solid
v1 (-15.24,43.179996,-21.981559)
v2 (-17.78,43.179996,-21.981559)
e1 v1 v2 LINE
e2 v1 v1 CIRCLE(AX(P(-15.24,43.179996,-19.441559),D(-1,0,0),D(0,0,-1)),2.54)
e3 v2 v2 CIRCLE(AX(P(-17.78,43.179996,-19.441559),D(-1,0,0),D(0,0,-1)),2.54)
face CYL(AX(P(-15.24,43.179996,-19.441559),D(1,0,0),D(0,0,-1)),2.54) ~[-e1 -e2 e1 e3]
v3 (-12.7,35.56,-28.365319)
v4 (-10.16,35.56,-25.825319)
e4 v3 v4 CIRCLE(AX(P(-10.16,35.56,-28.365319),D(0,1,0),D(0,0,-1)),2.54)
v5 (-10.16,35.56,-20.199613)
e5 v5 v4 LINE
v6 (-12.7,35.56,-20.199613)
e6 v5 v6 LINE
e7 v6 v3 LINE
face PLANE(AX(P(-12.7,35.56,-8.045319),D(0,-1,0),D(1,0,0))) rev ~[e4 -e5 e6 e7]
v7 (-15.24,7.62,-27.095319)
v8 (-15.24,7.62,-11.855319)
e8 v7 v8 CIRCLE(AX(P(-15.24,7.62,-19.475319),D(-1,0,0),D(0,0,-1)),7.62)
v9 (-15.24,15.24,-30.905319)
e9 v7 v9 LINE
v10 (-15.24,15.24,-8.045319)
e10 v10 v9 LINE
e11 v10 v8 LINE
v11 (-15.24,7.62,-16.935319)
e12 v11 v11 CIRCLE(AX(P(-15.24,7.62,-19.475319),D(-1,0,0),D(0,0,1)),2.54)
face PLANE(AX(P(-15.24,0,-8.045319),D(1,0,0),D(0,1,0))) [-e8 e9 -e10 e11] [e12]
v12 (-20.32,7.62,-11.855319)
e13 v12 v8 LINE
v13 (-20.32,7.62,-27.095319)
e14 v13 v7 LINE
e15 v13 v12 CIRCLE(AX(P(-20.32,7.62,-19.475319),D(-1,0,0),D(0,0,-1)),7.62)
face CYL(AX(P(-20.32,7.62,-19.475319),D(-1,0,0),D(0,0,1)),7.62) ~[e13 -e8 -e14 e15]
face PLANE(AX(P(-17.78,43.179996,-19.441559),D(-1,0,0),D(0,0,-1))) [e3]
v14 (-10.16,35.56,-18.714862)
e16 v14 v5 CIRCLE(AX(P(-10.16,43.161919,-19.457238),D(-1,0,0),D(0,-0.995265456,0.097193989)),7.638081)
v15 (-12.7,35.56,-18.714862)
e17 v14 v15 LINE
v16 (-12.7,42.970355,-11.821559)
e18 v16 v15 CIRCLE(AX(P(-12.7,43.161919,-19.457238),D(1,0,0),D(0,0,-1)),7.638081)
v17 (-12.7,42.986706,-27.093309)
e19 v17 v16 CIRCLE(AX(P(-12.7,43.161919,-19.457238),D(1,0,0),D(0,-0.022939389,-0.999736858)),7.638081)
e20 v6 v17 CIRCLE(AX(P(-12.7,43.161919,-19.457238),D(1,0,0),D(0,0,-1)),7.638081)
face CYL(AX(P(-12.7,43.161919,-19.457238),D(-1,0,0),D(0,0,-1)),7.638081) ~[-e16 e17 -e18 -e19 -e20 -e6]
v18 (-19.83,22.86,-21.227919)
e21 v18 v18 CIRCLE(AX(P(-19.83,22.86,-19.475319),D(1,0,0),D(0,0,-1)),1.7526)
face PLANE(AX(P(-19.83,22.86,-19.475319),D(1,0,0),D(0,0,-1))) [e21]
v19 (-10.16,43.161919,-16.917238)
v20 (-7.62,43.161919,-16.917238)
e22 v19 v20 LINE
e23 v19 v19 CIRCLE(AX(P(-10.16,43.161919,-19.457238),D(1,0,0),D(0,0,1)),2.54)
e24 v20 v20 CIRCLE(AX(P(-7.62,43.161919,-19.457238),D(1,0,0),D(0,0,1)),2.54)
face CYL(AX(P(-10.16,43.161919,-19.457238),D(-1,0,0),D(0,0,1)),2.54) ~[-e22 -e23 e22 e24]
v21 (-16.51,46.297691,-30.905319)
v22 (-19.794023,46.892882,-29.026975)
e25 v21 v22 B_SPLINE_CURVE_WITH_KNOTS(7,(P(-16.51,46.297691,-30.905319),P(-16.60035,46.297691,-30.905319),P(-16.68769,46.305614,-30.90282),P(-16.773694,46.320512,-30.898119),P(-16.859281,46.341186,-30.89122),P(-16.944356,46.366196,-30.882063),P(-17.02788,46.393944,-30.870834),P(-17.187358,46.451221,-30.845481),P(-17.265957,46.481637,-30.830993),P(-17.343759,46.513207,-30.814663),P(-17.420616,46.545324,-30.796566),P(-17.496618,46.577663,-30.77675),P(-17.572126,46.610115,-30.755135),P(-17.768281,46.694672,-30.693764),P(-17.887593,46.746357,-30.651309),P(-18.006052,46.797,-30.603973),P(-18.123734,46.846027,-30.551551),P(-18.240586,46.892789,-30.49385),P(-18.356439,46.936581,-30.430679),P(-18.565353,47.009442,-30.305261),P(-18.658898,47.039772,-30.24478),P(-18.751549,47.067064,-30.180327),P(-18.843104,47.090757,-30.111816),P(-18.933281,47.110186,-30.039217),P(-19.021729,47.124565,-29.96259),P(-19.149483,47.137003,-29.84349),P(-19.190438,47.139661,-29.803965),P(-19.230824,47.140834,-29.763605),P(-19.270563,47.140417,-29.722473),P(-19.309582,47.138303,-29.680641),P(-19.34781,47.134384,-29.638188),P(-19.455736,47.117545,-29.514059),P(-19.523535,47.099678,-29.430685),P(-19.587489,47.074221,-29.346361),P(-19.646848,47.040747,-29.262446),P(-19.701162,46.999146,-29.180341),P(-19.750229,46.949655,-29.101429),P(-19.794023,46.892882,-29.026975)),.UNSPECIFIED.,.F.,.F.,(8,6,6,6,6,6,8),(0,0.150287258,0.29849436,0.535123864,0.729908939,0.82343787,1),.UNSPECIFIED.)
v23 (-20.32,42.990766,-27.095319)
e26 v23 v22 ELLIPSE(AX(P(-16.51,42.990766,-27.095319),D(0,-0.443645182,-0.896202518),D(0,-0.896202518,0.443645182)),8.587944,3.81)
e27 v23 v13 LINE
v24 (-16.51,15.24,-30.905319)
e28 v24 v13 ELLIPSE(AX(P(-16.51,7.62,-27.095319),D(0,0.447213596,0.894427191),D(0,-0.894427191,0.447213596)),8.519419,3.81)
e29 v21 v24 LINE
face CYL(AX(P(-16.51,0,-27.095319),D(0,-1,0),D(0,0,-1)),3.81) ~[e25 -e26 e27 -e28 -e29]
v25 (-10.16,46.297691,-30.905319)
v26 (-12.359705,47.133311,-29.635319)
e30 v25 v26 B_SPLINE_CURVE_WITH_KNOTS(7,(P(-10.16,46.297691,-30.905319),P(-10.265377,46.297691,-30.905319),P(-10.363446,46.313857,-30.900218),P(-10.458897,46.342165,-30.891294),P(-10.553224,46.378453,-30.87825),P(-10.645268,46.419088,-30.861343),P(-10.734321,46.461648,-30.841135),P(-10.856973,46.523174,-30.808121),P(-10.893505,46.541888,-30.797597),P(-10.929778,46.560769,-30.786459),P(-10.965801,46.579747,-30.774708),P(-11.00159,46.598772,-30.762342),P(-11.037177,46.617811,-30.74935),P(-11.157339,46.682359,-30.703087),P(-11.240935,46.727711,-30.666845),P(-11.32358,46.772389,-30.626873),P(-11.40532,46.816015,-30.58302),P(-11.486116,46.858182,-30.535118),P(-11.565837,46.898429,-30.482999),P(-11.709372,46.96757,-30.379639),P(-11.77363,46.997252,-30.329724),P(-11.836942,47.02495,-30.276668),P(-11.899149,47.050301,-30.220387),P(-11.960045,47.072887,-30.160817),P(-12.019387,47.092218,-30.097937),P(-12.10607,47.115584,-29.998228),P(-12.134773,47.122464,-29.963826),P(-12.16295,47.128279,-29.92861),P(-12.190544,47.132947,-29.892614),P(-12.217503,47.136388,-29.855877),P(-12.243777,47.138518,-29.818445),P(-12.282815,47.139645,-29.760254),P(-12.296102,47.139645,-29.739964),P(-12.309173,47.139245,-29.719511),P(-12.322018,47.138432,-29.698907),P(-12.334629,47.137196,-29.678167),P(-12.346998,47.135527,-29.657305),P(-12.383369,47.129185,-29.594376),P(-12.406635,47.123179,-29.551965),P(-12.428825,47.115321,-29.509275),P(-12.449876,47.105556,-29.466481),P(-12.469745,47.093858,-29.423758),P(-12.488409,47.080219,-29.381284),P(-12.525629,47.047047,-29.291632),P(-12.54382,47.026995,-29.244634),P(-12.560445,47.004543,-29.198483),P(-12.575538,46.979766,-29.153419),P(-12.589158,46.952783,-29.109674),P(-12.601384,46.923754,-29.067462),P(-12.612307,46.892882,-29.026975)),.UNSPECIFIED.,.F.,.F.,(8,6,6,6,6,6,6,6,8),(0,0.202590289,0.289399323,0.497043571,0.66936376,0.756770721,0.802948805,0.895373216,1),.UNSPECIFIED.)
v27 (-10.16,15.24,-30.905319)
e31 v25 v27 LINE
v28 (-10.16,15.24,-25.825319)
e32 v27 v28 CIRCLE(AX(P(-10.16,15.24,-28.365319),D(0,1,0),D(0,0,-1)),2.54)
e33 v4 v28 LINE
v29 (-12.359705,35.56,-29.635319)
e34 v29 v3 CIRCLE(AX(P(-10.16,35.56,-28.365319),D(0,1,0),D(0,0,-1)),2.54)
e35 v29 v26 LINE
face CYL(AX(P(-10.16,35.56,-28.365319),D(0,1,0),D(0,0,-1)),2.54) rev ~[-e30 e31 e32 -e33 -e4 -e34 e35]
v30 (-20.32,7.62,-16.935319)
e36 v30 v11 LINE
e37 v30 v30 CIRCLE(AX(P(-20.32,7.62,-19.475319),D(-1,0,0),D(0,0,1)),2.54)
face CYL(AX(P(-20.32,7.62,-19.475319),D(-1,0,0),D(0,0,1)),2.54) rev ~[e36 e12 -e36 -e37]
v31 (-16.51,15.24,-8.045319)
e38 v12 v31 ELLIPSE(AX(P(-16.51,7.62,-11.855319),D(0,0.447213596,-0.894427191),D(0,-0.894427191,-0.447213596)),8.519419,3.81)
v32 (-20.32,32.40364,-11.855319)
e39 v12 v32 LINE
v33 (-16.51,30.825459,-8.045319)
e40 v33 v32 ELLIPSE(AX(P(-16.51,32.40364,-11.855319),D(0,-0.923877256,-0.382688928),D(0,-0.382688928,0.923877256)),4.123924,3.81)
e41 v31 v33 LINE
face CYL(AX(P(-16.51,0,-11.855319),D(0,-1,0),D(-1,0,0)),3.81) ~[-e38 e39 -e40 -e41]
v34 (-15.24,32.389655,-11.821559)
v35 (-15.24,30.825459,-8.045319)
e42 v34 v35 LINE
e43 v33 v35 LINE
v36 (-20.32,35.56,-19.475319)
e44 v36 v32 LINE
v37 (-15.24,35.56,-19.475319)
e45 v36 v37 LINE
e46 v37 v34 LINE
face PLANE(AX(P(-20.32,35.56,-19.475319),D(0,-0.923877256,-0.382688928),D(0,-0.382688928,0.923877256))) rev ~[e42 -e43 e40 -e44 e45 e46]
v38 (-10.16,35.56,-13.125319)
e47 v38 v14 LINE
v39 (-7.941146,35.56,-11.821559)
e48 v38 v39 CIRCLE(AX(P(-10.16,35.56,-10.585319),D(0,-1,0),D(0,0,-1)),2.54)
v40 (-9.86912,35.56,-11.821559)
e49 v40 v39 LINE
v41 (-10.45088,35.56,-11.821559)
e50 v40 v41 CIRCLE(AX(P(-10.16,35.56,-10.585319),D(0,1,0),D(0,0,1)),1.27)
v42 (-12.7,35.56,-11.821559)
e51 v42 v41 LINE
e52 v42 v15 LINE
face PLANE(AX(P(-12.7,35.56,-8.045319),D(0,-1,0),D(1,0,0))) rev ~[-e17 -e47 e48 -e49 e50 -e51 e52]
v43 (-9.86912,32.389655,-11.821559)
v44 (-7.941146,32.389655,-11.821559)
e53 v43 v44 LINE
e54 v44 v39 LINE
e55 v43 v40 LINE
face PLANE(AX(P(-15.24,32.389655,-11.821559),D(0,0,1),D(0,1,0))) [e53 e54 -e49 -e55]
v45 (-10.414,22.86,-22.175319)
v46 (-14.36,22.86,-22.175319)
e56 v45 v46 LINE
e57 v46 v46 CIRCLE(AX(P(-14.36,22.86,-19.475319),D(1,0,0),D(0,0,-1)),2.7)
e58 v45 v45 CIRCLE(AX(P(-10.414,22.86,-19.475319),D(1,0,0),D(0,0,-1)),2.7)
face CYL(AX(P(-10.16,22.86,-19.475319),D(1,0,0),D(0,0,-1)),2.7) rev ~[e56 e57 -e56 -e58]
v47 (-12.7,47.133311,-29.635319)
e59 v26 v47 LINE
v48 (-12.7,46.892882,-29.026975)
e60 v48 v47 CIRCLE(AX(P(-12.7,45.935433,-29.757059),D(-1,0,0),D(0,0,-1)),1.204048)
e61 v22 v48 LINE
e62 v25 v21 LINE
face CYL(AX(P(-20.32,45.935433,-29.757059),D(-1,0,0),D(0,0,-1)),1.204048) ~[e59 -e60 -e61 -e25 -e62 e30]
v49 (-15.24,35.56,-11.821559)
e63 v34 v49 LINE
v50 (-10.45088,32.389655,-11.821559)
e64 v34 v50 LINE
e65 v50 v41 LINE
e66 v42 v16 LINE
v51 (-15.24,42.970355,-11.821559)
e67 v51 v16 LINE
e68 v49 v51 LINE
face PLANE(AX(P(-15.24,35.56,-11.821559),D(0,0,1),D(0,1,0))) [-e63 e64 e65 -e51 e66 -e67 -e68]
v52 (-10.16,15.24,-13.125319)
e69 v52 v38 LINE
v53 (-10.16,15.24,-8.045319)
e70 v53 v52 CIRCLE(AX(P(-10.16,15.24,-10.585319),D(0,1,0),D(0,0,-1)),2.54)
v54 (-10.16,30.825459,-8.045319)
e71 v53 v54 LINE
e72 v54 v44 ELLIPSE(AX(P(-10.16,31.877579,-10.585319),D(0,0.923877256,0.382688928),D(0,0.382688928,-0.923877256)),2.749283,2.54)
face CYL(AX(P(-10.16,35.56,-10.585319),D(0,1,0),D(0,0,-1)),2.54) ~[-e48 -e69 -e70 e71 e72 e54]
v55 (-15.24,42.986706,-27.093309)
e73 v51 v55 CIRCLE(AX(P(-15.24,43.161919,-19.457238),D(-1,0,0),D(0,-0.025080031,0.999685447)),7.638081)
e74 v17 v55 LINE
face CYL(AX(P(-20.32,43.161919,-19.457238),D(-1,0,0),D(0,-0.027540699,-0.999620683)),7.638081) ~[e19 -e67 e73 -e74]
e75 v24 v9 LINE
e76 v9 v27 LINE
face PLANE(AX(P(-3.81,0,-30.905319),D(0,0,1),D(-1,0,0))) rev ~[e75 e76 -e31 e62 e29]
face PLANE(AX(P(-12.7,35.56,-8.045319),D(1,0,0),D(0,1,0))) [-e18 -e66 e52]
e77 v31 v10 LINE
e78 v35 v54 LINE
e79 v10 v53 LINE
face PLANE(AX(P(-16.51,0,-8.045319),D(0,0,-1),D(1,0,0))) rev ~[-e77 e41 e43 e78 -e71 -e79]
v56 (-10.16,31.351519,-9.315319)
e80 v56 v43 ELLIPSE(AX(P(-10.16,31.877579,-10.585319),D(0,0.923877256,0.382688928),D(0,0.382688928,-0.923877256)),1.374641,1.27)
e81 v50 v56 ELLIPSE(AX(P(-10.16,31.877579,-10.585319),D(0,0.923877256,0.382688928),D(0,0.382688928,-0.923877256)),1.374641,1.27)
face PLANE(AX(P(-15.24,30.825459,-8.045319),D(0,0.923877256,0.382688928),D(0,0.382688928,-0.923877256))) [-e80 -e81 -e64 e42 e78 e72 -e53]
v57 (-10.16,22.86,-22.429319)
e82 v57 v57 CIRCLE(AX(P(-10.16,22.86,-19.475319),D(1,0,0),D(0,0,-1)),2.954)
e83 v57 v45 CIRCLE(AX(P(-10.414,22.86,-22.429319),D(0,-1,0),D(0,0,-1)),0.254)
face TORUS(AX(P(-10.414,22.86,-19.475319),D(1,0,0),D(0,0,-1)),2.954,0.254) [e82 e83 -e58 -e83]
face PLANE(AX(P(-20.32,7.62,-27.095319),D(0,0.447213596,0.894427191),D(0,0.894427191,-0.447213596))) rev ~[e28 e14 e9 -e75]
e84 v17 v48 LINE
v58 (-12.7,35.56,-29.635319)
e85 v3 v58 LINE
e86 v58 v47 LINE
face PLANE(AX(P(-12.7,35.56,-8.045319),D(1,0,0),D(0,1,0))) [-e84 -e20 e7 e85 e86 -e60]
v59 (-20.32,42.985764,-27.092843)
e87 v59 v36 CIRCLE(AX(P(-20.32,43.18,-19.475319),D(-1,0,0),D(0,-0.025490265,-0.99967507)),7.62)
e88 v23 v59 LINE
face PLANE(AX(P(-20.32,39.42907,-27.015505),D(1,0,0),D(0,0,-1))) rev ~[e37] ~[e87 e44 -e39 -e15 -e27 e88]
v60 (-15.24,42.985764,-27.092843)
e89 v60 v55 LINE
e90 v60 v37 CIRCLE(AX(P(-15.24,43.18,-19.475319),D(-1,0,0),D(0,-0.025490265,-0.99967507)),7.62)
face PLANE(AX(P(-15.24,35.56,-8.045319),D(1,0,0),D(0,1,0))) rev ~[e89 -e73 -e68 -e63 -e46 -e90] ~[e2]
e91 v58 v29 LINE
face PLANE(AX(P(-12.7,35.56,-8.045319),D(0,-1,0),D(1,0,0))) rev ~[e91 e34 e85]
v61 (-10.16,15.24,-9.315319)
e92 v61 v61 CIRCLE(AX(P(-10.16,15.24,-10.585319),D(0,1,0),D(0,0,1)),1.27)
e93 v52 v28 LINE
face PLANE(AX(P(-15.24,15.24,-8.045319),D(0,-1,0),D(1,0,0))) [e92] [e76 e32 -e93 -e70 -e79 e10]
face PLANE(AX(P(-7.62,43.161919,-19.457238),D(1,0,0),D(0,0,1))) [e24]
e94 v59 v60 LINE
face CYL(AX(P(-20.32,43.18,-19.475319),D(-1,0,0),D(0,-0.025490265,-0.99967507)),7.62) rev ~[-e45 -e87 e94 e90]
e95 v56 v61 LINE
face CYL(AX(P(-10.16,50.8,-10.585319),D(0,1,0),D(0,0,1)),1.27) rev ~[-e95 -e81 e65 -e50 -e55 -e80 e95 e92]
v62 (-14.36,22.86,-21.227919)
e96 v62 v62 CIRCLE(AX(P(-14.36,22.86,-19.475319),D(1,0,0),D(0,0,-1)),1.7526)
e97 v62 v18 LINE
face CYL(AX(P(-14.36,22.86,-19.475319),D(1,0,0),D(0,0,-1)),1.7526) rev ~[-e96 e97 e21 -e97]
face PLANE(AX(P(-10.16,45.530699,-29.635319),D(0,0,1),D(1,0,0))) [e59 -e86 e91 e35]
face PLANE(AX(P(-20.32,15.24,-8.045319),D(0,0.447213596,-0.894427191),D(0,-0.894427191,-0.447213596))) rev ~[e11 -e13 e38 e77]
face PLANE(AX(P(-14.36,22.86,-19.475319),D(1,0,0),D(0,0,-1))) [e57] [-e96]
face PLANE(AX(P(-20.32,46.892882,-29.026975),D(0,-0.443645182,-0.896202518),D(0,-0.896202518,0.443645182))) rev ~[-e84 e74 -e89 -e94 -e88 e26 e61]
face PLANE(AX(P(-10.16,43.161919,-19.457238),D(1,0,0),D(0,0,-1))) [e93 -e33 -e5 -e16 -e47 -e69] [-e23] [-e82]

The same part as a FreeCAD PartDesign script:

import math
import FreeCAD as App
import Part
import Sketcher
from FreeCAD import Vector
Q = App.Units.Quantity


def edges_at(feature, points):
    """Names of the edges that pass closest to the given points."""
    edges = feature.Shape.Edges
    near = lambda p: min(range(len(edges)), key=lambda i: edges[i].distToShape(Part.Vertex(*p))[0])
    return sorted({f"Edge{near(p) + 1}" for p in points})

doc = App.newDocument("Part")
params = doc.addObject("Spreadsheet::Sheet", "Params")
for row, (alias, value) in enumerate([
    ("sketch1_radius", "0.15 in"),
    ("sketch1_width", "0.5 in"),
    ("sketch1_height", "0.6 in"),
    ("pad1_length", "2 in"),
    ("sketch2_diameter", "0.1 in"),
    ("pocket1_length", "2 in"),
    ("sketch3_radius", "0.3 in"),
    ("sketch3_width", "0.8 in"),
    ("sketch3_height", "0.9 in"),
    ("pocket2_length", "2 in"),
    ("sketch4_width", "0.1 in"),
    ("sketch4_width2", "0.2 in"),
    ("sketch4_height", "0.6 in"),
    ("pocket3_length", "2 in"),
    ("sketch5_radius", "0.3 in"),
    ("pad2_length", "0.8 in"),
    ("sketch6_width", "0.4 in"),
    ("sketch6_height", "0.6 in"),
    ("pocket4_length", "2 in"),
    ("sketch7_diameter", "0.2 in"),
    ("pocket5_length", "2 in"),
    ("sketch8_diameter", "0.2 in"),
    ("pad3_length", "0.1 in"),
    ("linearpattern_pitch", "0.5 in"),
    ("sketch9_radius", "0.15 in"),
    ("sketch9_width", "0.5 in"),
    ("pocket6_length", "0.8 in"),
    ("sketch10_width", "0.2 in"),
    ("pocket7_length", "0.85 in"),
    ("pocket8_length", "0.2 in"),
    ("linearpattern2_pitch", "0.6 in"),
    ("sketch12_radius", "0.1 in"),
    ("sketch12_height", "0.5 in"),
    ("pocket9_length", "3.21 in"),
    ("pad4_length", "0.1 in"),
    ("sketch14_diameter", "0.2 in"),
    ("pad5_length", "0.1 in"),
    ("pocket10_length", "0.1 in"),
    ("pocket11_length", "0.39 in"),
    ("pocket12_length", "4.2 mm"),
    ("fillet_radius", "0.01 in"),
    ("sketch18_diameter", "0.138 in"),
    ("pocket13_length", "5.47 mm"),
], start=1):
    params.set(f"A{row}", alias)
    params.set(f"B{row}", "=" + value)
    params.setAlias(f"B{row}", alias)

body = doc.addObject("PartDesign::Body", "Body")

# Sketch on XZ plane
sketch1 = doc.addObject("Sketcher::SketchObject", "Sketch")
body.addObject(sketch1)
sketch1.AttachmentSupport = (doc.XZ_Plane, [""])
sketch1.MapMode = "FlatFace"
sketch1.addGeometry([
    Part.LineSegment(Vector(-20.3, -27.1, 0), Vector(-20.3, -11.9, 0)),  # 0
    Part.ArcOfCircle(Part.Circle(Vector(-16.5, -11.9, 0), Vector(0, 0, 1), 3.8), math.radians(90), math.radians(180)),  # 1
    Part.LineSegment(Vector(-16.5, -8, 0), Vector(-3.8, -8, 0)),  # 2
    Part.ArcOfCircle(Part.Circle(Vector(-3.8, -11.9, 0), Vector(0, 0, 1), 3.8), math.radians(0), math.radians(90)),  # 3
    Part.LineSegment(Vector(0, -11.9, 0), Vector(0, -27.1, 0)),  # 4
    Part.ArcOfCircle(Part.Circle(Vector(-3.8, -27.1, 0), Vector(0, 0, 1), 3.8), math.radians(-90), math.radians(0)),  # 5
    Part.LineSegment(Vector(-3.8, -30.9, 0), Vector(-16.5, -30.9, 0)),  # 6
    Part.ArcOfCircle(Part.Circle(Vector(-16.5, -27.1, 0), Vector(0, 0, 1), 3.8), math.radians(180), math.radians(270)),  # 7
], False)
sketch1.addConstraint([
    Sketcher.Constraint("Tangent", 0, 2, 1, 2),
    Sketcher.Constraint("Tangent", 1, 1, 2, 1),
    Sketcher.Constraint("Tangent", 2, 2, 3, 2),
    Sketcher.Constraint("Tangent", 3, 1, 4, 1),
    Sketcher.Constraint("Tangent", 4, 2, 5, 2),
    Sketcher.Constraint("Tangent", 5, 1, 6, 1),
    Sketcher.Constraint("Tangent", 6, 2, 7, 2),
    Sketcher.Constraint("Tangent", 7, 1, 0, 1),
    Sketcher.Constraint("Vertical", 0),
    Sketcher.Constraint("Horizontal", 2),
    Sketcher.Constraint("Vertical", 4),
    Sketcher.Constraint("Horizontal", 6),
    Sketcher.Constraint("Equal", 1, 3),
    Sketcher.Constraint("Equal", 3, 5),
    Sketcher.Constraint("Equal", 5, 7),
    Sketcher.Constraint("PointOnObject", 3, 1, -2),
    Sketcher.Constraint("Radius", 1, Q("0.15 in")),
    Sketcher.Constraint("DistanceX", 2, 1, 2, 2, Q("0.5 in")),
    Sketcher.Constraint("DistanceY", 0, 1, 0, 2, Q("0.6 in")),
    Sketcher.Constraint("DistanceY", 1, 3, -1, 1, 11.855319),
])
sketch1.setExpression("Constraints[16]", "Params.sketch1_radius")
sketch1.setExpression("Constraints[17]", "Params.sketch1_width")
sketch1.setExpression("Constraints[18]", "Params.sketch1_height")
pad1 = doc.addObject("PartDesign::Pad", "Pad")
body.addObject(pad1)
pad1.Profile = sketch1
pad1.setExpression("Length", "Params.pad1_length")
pad1.Reversed = True

# Sketch on XZ plane
sketch2 = doc.addObject("Sketcher::SketchObject", "Sketch001")
body.addObject(sketch2)
sketch2.AttachmentSupport = (doc.XZ_Plane, [""])
sketch2.MapMode = "FlatFace"
sketch2.AttachmentOffset = App.Placement(Vector(0, 0, -2 * 25.4), App.Rotation())
sketch2.addGeometry([
    Part.Circle(Vector(-10.2, -10.6, 0), Vector(0, 0, 1), 1.3),
    Part.Circle(Vector(-10.2, -28.4, 0), Vector(0, 0, 1), 1.3),
], False)
sketch2.addConstraint([
    Sketcher.Constraint("Equal", 0, 1),
    Sketcher.Constraint("Vertical", 0, 3, 1, 3),
    Sketcher.Constraint("Diameter", 0, Q("0.1 in")),
    Sketcher.Constraint("DistanceX", 0, 3, -1, 1, Q("0.4 in")),
    Sketcher.Constraint("DistanceY", 1, 3, 0, 3, Q("0.7 in")),
    Sketcher.Constraint("DistanceY", 0, 3, -1, 1, 10.585319),
])
sketch2.setExpression("Constraints[2]", "Params.sketch2_diameter")
pocket1 = doc.addObject("PartDesign::Pocket", "Pocket")
body.addObject(pocket1)
pocket1.Profile = sketch2
pocket1.setExpression("Length", "Params.pocket1_length")
pocket1.Reversed = True

# Sketch on YZ plane
sketch3 = doc.addObject("Sketcher::SketchObject", "Sketch002")
body.addObject(sketch3)
sketch3.AttachmentSupport = (doc.YZ_Plane, [""])
sketch3.MapMode = "FlatFace"
sketch3.AttachmentOffset = App.Placement(Vector(0, 0, -0.8 * 25.4), App.Rotation())
sketch3.addGeometry([
    Part.LineSegment(Vector(8, -27, 0), Vector(15, -31, 0)),  # 0
    Part.LineSegment(Vector(15, -31, 0), Vector(-5, -31, 0)),  # 1
    Part.LineSegment(Vector(-5, -31, 0), Vector(-5, -8, 0)),  # 2
    Part.LineSegment(Vector(-5, -8, 0), Vector(15, -8, 0)),  # 3
    Part.LineSegment(Vector(15, -8, 0), Vector(8, -12, 0)),  # 4
    Part.ArcOfCircle(Part.Circle(Vector(8, -19, 0), Vector(0, 0, 1), 8), math.radians(90), math.radians(270)),  # 5
    Part.LineSegment(Vector(43, -12, 0), Vector(36, -8, 0)),  # 6
    Part.LineSegment(Vector(36, -8, 0), Vector(56, -8, 0)),  # 7
    Part.LineSegment(Vector(56, -8, 0), Vector(56, -31, 0)),  # 8
    Part.LineSegment(Vector(56, -31, 0), Vector(36, -31, 0)),  # 9
    Part.LineSegment(Vector(36, -31, 0), Vector(43, -27, 0)),  # 10
    Part.ArcOfCircle(Part.Circle(Vector(43, -19, 0), Vector(0, 0, 1), 8), math.radians(-92), math.radians(91)),  # 11
], False)
sketch3.addConstraint([
    Sketcher.Constraint("Coincident", 0, 2, 1, 1),
    Sketcher.Constraint("Coincident", 1, 2, 2, 1),
    Sketcher.Constraint("Coincident", 2, 2, 3, 1),
    Sketcher.Constraint("Coincident", 3, 2, 4, 1),
    Sketcher.Constraint("Coincident", 4, 2, 5, 1),
    Sketcher.Constraint("Coincident", 5, 2, 0, 1),
    Sketcher.Constraint("Coincident", 6, 2, 7, 1),
    Sketcher.Constraint("Coincident", 7, 2, 8, 1),
    Sketcher.Constraint("Coincident", 8, 2, 9, 1),
    Sketcher.Constraint("Coincident", 9, 2, 10, 1),
    Sketcher.Constraint("Coincident", 10, 2, 11, 1),
    Sketcher.Constraint("Coincident", 11, 2, 6, 1),
    Sketcher.Constraint("Horizontal", 1),
    Sketcher.Constraint("Vertical", 2),
    Sketcher.Constraint("Horizontal", 3),
    Sketcher.Constraint("Horizontal", 7),
    Sketcher.Constraint("Vertical", 8),
    Sketcher.Constraint("Horizontal", 9),
    Sketcher.Constraint("Horizontal", 3, 2, 6, 2),
    Sketcher.Constraint("Horizontal", 1, 2, 8, 2),
    Sketcher.Constraint("Vertical", 0, 2, 3, 2),
    Sketcher.Constraint("Vertical", 5, 3, 4, 2),
    Sketcher.Constraint("Vertical", 4, 2, 5, 2),
    Sketcher.Constraint("Vertical", 6, 2, 9, 2),
    Sketcher.Constraint("Equal", 3, 7),
    Sketcher.Constraint("Equal", 0, 4),
    Sketcher.Constraint("Equal", 6, 10),
    Sketcher.Constraint("Radius", 5, Q("0.3 in")),
    Sketcher.Constraint("DistanceX", 1, 2, 1, 1, Q("0.8 in")),
    Sketcher.Constraint("DistanceY", 2, 1, 2, 2, Q("0.9 in")),
    Sketcher.Constraint("DistanceX", -1, 1, 5, 3, Q("0.3 in")),
    Sketcher.Constraint("DistanceX", -1, 1, 0, 2, Q("0.6 in")),
    Sketcher.Constraint("DistanceX", -1, 1, 6, 2, Q("1.4 in")),
    Sketcher.Constraint("Radius", 11, 7.638081),
    Sketcher.Constraint("Distance", 6, 8.317052),
    Sketcher.Constraint("DistanceY", 5, 3, -1, 1, 19.475319),
    Sketcher.Constraint("DistanceX", -1, 1, 11, 3, 43.161919),
    Sketcher.Constraint("DistanceX", -1, 1, 10, 2, 42.95156),
])
sketch3.setExpression("Constraints[27]", "Params.sketch3_radius")
sketch3.setExpression("Constraints[28]", "Params.sketch3_width")
sketch3.setExpression("Constraints[29]", "Params.sketch3_height")
pocket2 = doc.addObject("PartDesign::Pocket", "Pocket001")
body.addObject(pocket2)
pocket2.Profile = sketch3
pocket2.setExpression("Length", "Params.pocket2_length")
pocket2.Reversed = True

# Sketch on XY plane
sketch4 = doc.addObject("Sketcher::SketchObject", "Sketch003")
body.addObject(sketch4)
sketch4.AttachmentSupport = (doc.XY_Plane, [""])
sketch4.MapMode = "FlatFace"
sketch4.AttachmentOffset = App.Placement(Vector(0, 0, -8.045319), App.Rotation())
sketch4.addGeometry([
    Part.LineSegment(Vector(-15.2, 50.8, 0), Vector(-12.7, 50.8, 0)),  # 0
    Part.LineSegment(Vector(-12.7, 50.8, 0), Vector(-12.7, 35.6, 0)),  # 1
    Part.LineSegment(Vector(-12.7, 35.6, 0), Vector(-7.6, 35.6, 0)),  # 2
    Part.LineSegment(Vector(-7.6, 35.6, 0), Vector(-7.6, 50.8, 0)),  # 3
    Part.LineSegment(Vector(-7.6, 50.8, 0), Vector(-5.1, 50.8, 0)),  # 4
    Part.LineSegment(Vector(-5.1, 50.8, 0), Vector(-5.1, 35.6, 0)),  # 5
    Part.LineSegment(Vector(-5.1, 35.6, 0), Vector(0, 35.6, 0)),  # 6
    Part.LineSegment(Vector(0, 35.6, 0), Vector(0, 59.2, 0)),  # 7
    Part.LineSegment(Vector(0, 59.2, 0), Vector(-20.3, 59.2, 0)),  # 8
    Part.LineSegment(Vector(-20.3, 59.2, 0), Vector(-20.3, 35.6, 0)),  # 9
    Part.LineSegment(Vector(-20.3, 35.6, 0), Vector(-15.2, 35.6, 0)),  # 10
    Part.LineSegment(Vector(-15.2, 35.6, 0), Vector(-15.2, 50.8, 0)),  # 11
], False)
sketch4.addConstraint([
    Sketcher.Constraint("Coincident", 0, 2, 1, 1),
    Sketcher.Constraint("Coincident", 1, 2, 2, 1),
    Sketcher.Constraint("Coincident", 2, 2, 3, 1),
    Sketcher.Constraint("Coincident", 3, 2, 4, 1),
    Sketcher.Constraint("Coincident", 4, 2, 5, 1),
    Sketcher.Constraint("Coincident", 5, 2, 6, 1),
    Sketcher.Constraint("Coincident", 6, 2, 7, 1),
    Sketcher.Constraint("Coincident", 7, 2, 8, 1),
    Sketcher.Constraint("Coincident", 8, 2, 9, 1),
    Sketcher.Constraint("Coincident", 9, 2, 10, 1),
    Sketcher.Constraint("Coincident", 10, 2, 11, 1),
    Sketcher.Constraint("Coincident", 11, 2, 0, 1),
    Sketcher.Constraint("Horizontal", 0),
    Sketcher.Constraint("Vertical", 1),
    Sketcher.Constraint("Horizontal", 2),
    Sketcher.Constraint("Vertical", 3),
    Sketcher.Constraint("Horizontal", 4),
    Sketcher.Constraint("Vertical", 5),
    Sketcher.Constraint("Horizontal", 6),
    Sketcher.Constraint("Vertical", 7),
    Sketcher.Constraint("Horizontal", 8),
    Sketcher.Constraint("Vertical", 9),
    Sketcher.Constraint("Horizontal", 10),
    Sketcher.Constraint("Vertical", 11),
    Sketcher.Constraint("PointOnObject", 6, 2, -2),
    Sketcher.Constraint("Horizontal", 0, 2, 3, 2),
    Sketcher.Constraint("Horizontal", 2, 2, 5, 2),
    Sketcher.Constraint("Horizontal", 6, 2, 9, 2),
    Sketcher.Constraint("Equal", 0, 4),
    Sketcher.Constraint("Equal", 2, 6),
    Sketcher.Constraint("Equal", 6, 10),
    Sketcher.Constraint("DistanceX", 0, 1, 0, 2, Q("0.1 in")),
    Sketcher.Constraint("DistanceX", 2, 1, 2, 2, Q("0.2 in")),
    Sketcher.Constraint("DistanceY", 1, 2, 1, 1, Q("0.6 in")),
    Sketcher.Constraint("DistanceY", -1, 1, 0, 2, Q("2 in")),
    Sketcher.Constraint("DistanceY", 7, 1, 7, 2, 23.596438),
])
sketch4.setExpression("Constraints[31]", "Params.sketch4_width")
sketch4.setExpression("Constraints[32]", "Params.sketch4_width2")
sketch4.setExpression("Constraints[33]", "Params.sketch4_height")
pocket3 = doc.addObject("PartDesign::Pocket", "Pocket002")
body.addObject(pocket3)
pocket3.Profile = sketch4
pocket3.setExpression("Length", "Params.pocket3_length")

# Sketch on YZ plane
sketch5 = doc.addObject("Sketcher::SketchObject", "Sketch004")
body.addObject(sketch5)
sketch5.AttachmentSupport = (doc.YZ_Plane, [""])
sketch5.MapMode = "FlatFace"
sketch5.AttachmentOffset = App.Placement(Vector(0, 0, -0.8 * 25.4), App.Rotation())
sketch5.addGeometry([
    Part.LineSegment(Vector(35.6, -31, 0), Vector(35.6, -19.5, 0)),  # 0
    Part.ArcOfCircle(Part.Circle(Vector(43.2, -19.5, 0), Vector(0, 0, 1), 7.6), math.radians(180), math.radians(269)),  # 1
    Part.LineSegment(Vector(43, -27.1, 0), Vector(46.9, -29, 0)),  # 2
    Part.ArcOfCircle(Part.Circle(Vector(45.9, -29.8, 0), Vector(0, 0, 1), 1.2), math.radians(-90), math.radians(37)),  # 3
    Part.LineSegment(Vector(45.9, -31, 0), Vector(35.6, -31, 0)),  # 4
], False)
sketch5.addConstraint([
    Sketcher.Constraint("Tangent", 0, 2, 1, 1),
    Sketcher.Constraint("Coincident", 1, 2, 2, 1),
    Sketcher.Constraint("Coincident", 2, 2, 3, 2),
    Sketcher.Constraint("Tangent", 3, 1, 4, 1),
    Sketcher.Constraint("Coincident", 4, 2, 0, 1),
    Sketcher.Constraint("Vertical", 0),
    Sketcher.Constraint("Horizontal", 4),
    Sketcher.Constraint("Radius", 1, Q("0.3 in")),
    Sketcher.Constraint("DistanceX", -1, 1, 1, 3, Q("1.7 in")),
    Sketcher.Constraint("Radius", 3, 1.204048),
    Sketcher.Constraint("DistanceY", 0, 1, 0, 2, 11.485788),
    Sketcher.Constraint("DistanceX", 4, 2, 4, 1, 10.375433),
    Sketcher.Constraint("DistanceY", 1, 3, -1, 1, 19.475319),
    Sketcher.Constraint("DistanceX", 1, 2, 3, 3, 2.949669),
    Sketcher.Constraint("DistanceX", 3, 3, 2, 2, 0.957449),
])
sketch5.setExpression("Constraints[7]", "Params.sketch5_radius")
pad2 = doc.addObject("PartDesign::Pad", "Pad001")
body.addObject(pad2)
pad2.Profile = sketch5
pad2.setExpression("Length", "Params.pad2_length")

# Sketch on XY plane
sketch6 = doc.addObject("Sketcher::SketchObject", "Sketch005")
body.addObject(sketch6)
sketch6.AttachmentSupport = (doc.XY_Plane, [""])
sketch6.MapMode = "FlatFace"
sketch6.AttachmentOffset = App.Placement(Vector(0, 0, -8.045319), App.Rotation())
sketch6.addGeometry([
    Part.LineSegment(Vector(-15, 15, 0), Vector(-15, 0, 0)),
    Part.LineSegment(Vector(-15, 0, 0), Vector(-5, 0, 0)),
    Part.LineSegment(Vector(-5, 0, 0), Vector(-5, 15, 0)),
    Part.LineSegment(Vector(-5, 15, 0), Vector(-15, 15, 0)),
], False)
sketch6.addConstraint([
    Sketcher.Constraint("Coincident", 0, 2, 1, 1),
    Sketcher.Constraint("Coincident", 1, 2, 2, 1),
    Sketcher.Constraint("Coincident", 2, 2, 3, 1),
    Sketcher.Constraint("Coincident", 3, 2, 0, 1),
    Sketcher.Constraint("Vertical", 0),
    Sketcher.Constraint("Horizontal", 1),
    Sketcher.Constraint("Vertical", 2),
    Sketcher.Constraint("Horizontal", 3),
    Sketcher.Constraint("PointOnObject", 0, 2, -1),
    Sketcher.Constraint("DistanceX", 1, 1, 1, 2, Q("0.4 in")),
    Sketcher.Constraint("DistanceY", 0, 2, 0, 1, Q("0.6 in")),
    Sketcher.Constraint("DistanceX", 0, 2, -1, 1, Q("0.6 in")),
])
sketch6.setExpression("Constraints[9]", "Params.sketch6_width")
sketch6.setExpression("Constraints[10]", "Params.sketch6_height")
pocket4 = doc.addObject("PartDesign::Pocket", "Pocket003")
body.addObject(pocket4)
pocket4.Profile = sketch6
pocket4.setExpression("Length", "Params.pocket4_length")

# Sketch on YZ plane
sketch7 = doc.addObject("Sketcher::SketchObject", "Sketch006")
body.addObject(sketch7)
sketch7.AttachmentSupport = (doc.YZ_Plane, [""])
sketch7.MapMode = "FlatFace"
sketch7.AttachmentOffset = App.Placement(Vector(0, 0, -0.8 * 25.4), App.Rotation())
sketch7.addGeometry(Part.Circle(Vector(7.6, -19.5, 0), Vector(0, 0, 1), 2.5), False)
sketch7.addConstraint([
    Sketcher.Constraint("Diameter", 0, Q("0.2 in")),
    Sketcher.Constraint("DistanceX", -1, 1, 0, 3, Q("0.3 in")),
    Sketcher.Constraint("DistanceY", 0, 3, -1, 1, 19.475319),
])
sketch7.setExpression("Constraints[0]", "Params.sketch7_diameter")
pocket5 = doc.addObject("PartDesign::Pocket", "Pocket004")
body.addObject(pocket5)
pocket5.Profile = sketch7
pocket5.setExpression("Length", "Params.pocket5_length")
pocket5.Reversed = True

# Sketch on YZ plane
sketch8 = doc.addObject("Sketcher::SketchObject", "Sketch007")
body.addObject(sketch8)
sketch8.AttachmentSupport = (doc.YZ_Plane, [""])
sketch8.MapMode = "FlatFace"
sketch8.AttachmentOffset = App.Placement(Vector(0, 0, -0.6 * 25.4), App.Rotation())
sketch8.addGeometry(Part.Circle(Vector(43.2, -19.4, 0), Vector(0, 0, 1), 2.5), False)
sketch8.addConstraint([
    Sketcher.Constraint("Diameter", 0, Q("0.2 in")),
    Sketcher.Constraint("DistanceX", -1, 1, 0, 3, Q("1.6999998 in")),
    Sketcher.Constraint("DistanceY", 0, 3, -1, 1, 19.441559),
])
sketch8.setExpression("Constraints[0]", "Params.sketch8_diameter")
pad3 = doc.addObject("PartDesign::Pad", "Pad002")
body.addObject(pad3)
pad3.Profile = sketch8
pad3.setExpression("Length", "Params.pad3_length")
pad3.Reversed = True
doc.recompute()

linearpattern = doc.addObject("PartDesign::LinearPattern", "LinearPattern")
body.addObject(linearpattern)
linearpattern.Originals = [pad3]
linearpattern.Direction = (doc.X_Axis, [""])
linearpattern.Mode = "offset"
linearpattern.setExpression("Offset", "Params.linearpattern_pitch")
linearpattern.Occurrences = 2
body.Tip = linearpattern

# Sketch on XZ plane
sketch9 = doc.addObject("Sketcher::SketchObject", "Sketch008")
body.addObject(sketch9)
sketch9.AttachmentSupport = (doc.XZ_Plane, [""])
sketch9.MapMode = "FlatFace"
sketch9.AttachmentOffset = App.Placement(Vector(0, 0, -1.4 * 25.4), App.Rotation())
sketch9.addGeometry([
    Part.LineSegment(Vector(-3.8, -30.9, 0), Vector(-16.5, -30.9, 0)),  # 0
    Part.ArcOfCircle(Part.Circle(Vector(-16.5, -27.1, 0), Vector(0, 0, 1), 3.8), math.radians(180), math.radians(270)),  # 1
    Part.LineSegment(Vector(-20.3, -27.1, 0), Vector(-26.8, -37.9, 0)),  # 2
    Part.LineSegment(Vector(-26.8, -37.9, 0), Vector(5.8, -37.3, 0)),  # 3
    Part.LineSegment(Vector(5.8, -37.3, 0), Vector(0, -27.1, 0)),  # 4
    Part.ArcOfCircle(Part.Circle(Vector(-3.8, -27.1, 0), Vector(0, 0, 1), 3.8), math.radians(-90), math.radians(0)),  # 5
], False)
sketch9.addConstraint([
    Sketcher.Constraint("Tangent", 0, 2, 1, 2),
    Sketcher.Constraint("Coincident", 1, 1, 2, 1),
    Sketcher.Constraint("Coincident", 2, 2, 3, 1),
    Sketcher.Constraint("Coincident", 3, 2, 4, 1),
    Sketcher.Constraint("Coincident", 4, 2, 5, 2),
    Sketcher.Constraint("Tangent", 5, 1, 0, 1),
    Sketcher.Constraint("Horizontal", 0),
    Sketcher.Constraint("Equal", 1, 5),
    Sketcher.Constraint("PointOnObject", 4, 2, -2),
    Sketcher.Constraint("Horizontal", 5, 3, 1, 1),
    Sketcher.Constraint("Horizontal", 1, 1, 4, 2),
    Sketcher.Constraint("Radius", 1, Q("0.15 in")),
    Sketcher.Constraint("DistanceX", 0, 2, 0, 1, Q("0.5 in")),
    Sketcher.Constraint("Distance", 3, 32.574801),
    Sketcher.Constraint("DistanceY", 1, 3, -1, 1, 27.095319),
    Sketcher.Constraint("DistanceX", 2, 2, -1, 1, 26.797759),
    Sketcher.Constraint("DistanceY", 2, 2, -1, 1, 37.89074),
    Sketcher.Constraint("DistanceY", 3, 2, -1, 1, 37.25883),
])
sketch9.setExpression("Constraints[11]", "Params.sketch9_radius")
sketch9.setExpression("Constraints[12]", "Params.sketch9_width")
pocket6 = doc.addObject("PartDesign::Pocket", "Pocket005")
body.addObject(pocket6)
pocket6.Profile = sketch9
pocket6.setExpression("Length", "Params.pocket6_length")

# Sketch on XY plane
sketch10 = doc.addObject("Sketcher::SketchObject", "Sketch009")
body.addObject(sketch10)
sketch10.AttachmentSupport = (doc.XY_Plane, [""])
sketch10.MapMode = "FlatFace"
sketch10.AttachmentOffset = App.Placement(Vector(0, 0, -8.045319), App.Rotation())
sketch10.addGeometry([
    Part.LineSegment(Vector(-13, 56, 0), Vector(-13, 36, 0)),
    Part.LineSegment(Vector(-13, 36, 0), Vector(-8, 36, 0)),
    Part.LineSegment(Vector(-8, 36, 0), Vector(-8, 56, 0)),
    Part.LineSegment(Vector(-8, 56, 0), Vector(-13, 56, 0)),
], False)
sketch10.addConstraint([
    Sketcher.Constraint("Coincident", 0, 2, 1, 1),
    Sketcher.Constraint("Coincident", 1, 2, 2, 1),
    Sketcher.Constraint("Coincident", 2, 2, 3, 1),
    Sketcher.Constraint("Coincident", 3, 2, 0, 1),
    Sketcher.Constraint("Vertical", 0),
    Sketcher.Constraint("Horizontal", 1),
    Sketcher.Constraint("Vertical", 2),
    Sketcher.Constraint("Horizontal", 3),
    Sketcher.Constraint("DistanceX", 1, 1, 1, 2, Q("0.2 in")),
    Sketcher.Constraint("DistanceX", 0, 2, -1, 1, Q("0.5 in")),
    Sketcher.Constraint("DistanceY", -1, 1, 0, 2, Q("1.4 in")),
    Sketcher.Constraint("DistanceY", 0, 2, 0, 1, 19.941398),
])
sketch10.setExpression("Constraints[8]", "Params.sketch10_width")
pocket7 = doc.addObject("PartDesign::Pocket", "Pocket006")
body.addObject(pocket7)
pocket7.Profile = sketch10
pocket7.setExpression("Length", "Params.pocket7_length")

# Sketch on YZ plane
sketch11 = doc.addObject("Sketcher::SketchObject", "Sketch010")
body.addObject(sketch11)
sketch11.AttachmentSupport = (doc.YZ_Plane, [""])
sketch11.MapMode = "FlatFace"
sketch11.AttachmentOffset = App.Placement(Vector(0, 0, -0.8 * 25.4), App.Rotation())
sketch11.addGeometry([
    Part.LineSegment(Vector(35.6, -19.5, 0), Vector(30.8, -8, 0)),
    Part.LineSegment(Vector(30.8, -8, 0), Vector(30.8, -1.3, 0)),
    Part.LineSegment(Vector(30.8, -1.3, 0), Vector(35.6, -1.3, 0)),
    Part.LineSegment(Vector(35.6, -1.3, 0), Vector(35.6, -19.5, 0)),
], False)
sketch11.addConstraint([
    Sketcher.Constraint("Coincident", 0, 2, 1, 1),
    Sketcher.Constraint("Coincident", 1, 2, 2, 1),
    Sketcher.Constraint("Coincident", 2, 2, 3, 1),
    Sketcher.Constraint("Coincident", 3, 2, 0, 1),
    Sketcher.Constraint("Vertical", 1),
    Sketcher.Constraint("Horizontal", 2),
    Sketcher.Constraint("Vertical", 3),
    Sketcher.Constraint("DistanceX", -1, 1, 2, 2, Q("1.4 in")),
    Sketcher.Constraint("DistanceY", 3, 2, 0, 2, Q("0.45 in")),
    Sketcher.Constraint("DistanceX", 2, 1, 2, 2, 4.734541),
    Sketcher.Constraint("DistanceY", 1, 1, 1, 2, 6.724614),
    Sketcher.Constraint("DistanceY", 0, 2, -1, 1, 8.045319),
])
pocket8 = doc.addObject("PartDesign::Pocket", "Pocket007")
body.addObject(pocket8)
pocket8.Profile = sketch11
pocket8.setExpression("Length", "Params.pocket8_length")
pocket8.Reversed = True
doc.recompute()

linearpattern2 = doc.addObject("PartDesign::LinearPattern", "LinearPattern001")
body.addObject(linearpattern2)
linearpattern2.Originals = [pocket8]
linearpattern2.Direction = (doc.X_Axis, [""])
linearpattern2.Mode = "offset"
linearpattern2.setExpression("Offset", "Params.linearpattern2_pitch")
linearpattern2.Occurrences = 2
body.Tip = linearpattern2

# Sketch on XZ plane
sketch12 = doc.addObject("Sketcher::SketchObject", "Sketch011")
body.addObject(sketch12)
sketch12.AttachmentSupport = (doc.XZ_Plane, [""])
sketch12.MapMode = "FlatFace"
sketch12.AttachmentOffset = App.Placement(Vector(0, 0, -1.4 * 25.4), App.Rotation())
sketch12.addGeometry([
    Part.LineSegment(Vector(-10.2, -25.8, 0), Vector(-10.2, -13.1, 0)),  # 0
    Part.ArcOfCircle(Part.Circle(Vector(-10.2, -10.6, 0), Vector(0, 0, 1), 2.5), math.radians(-90), math.radians(90)),  # 1
    Part.LineSegment(Vector(-10.2, -8, 0), Vector(12.1, 16, 0)),  # 2
    Part.LineSegment(Vector(12.1, 16, 0), Vector(9, -40.4, 0)),  # 3
    Part.LineSegment(Vector(9, -40.4, 0), Vector(-10.2, -30.9, 0)),  # 4
    Part.ArcOfCircle(Part.Circle(Vector(-10.2, -28.4, 0), Vector(0, 0, 1), 2.5), math.radians(90), math.radians(270)),  # 5
], False)
sketch12.addConstraint([
    Sketcher.Constraint("Coincident", 0, 2, 1, 1),
    Sketcher.Constraint("Coincident", 1, 2, 2, 1),
    Sketcher.Constraint("Coincident", 2, 2, 3, 1),
    Sketcher.Constraint("Coincident", 3, 2, 4, 1),
    Sketcher.Constraint("Coincident", 4, 2, 5, 2),
    Sketcher.Constraint("Coincident", 5, 1, 0, 1),
    Sketcher.Constraint("Vertical", 0),
    Sketcher.Constraint("Equal", 1, 5),
    Sketcher.Constraint("Vertical", 1, 3, 5, 3),
    Sketcher.Constraint("Vertical", 5, 3, 0, 2),
    Sketcher.Constraint("Vertical", 0, 2, 1, 2),
    Sketcher.Constraint("Vertical", 1, 2, 4, 2),
    Sketcher.Constraint("Radius", 1, Q("0.1 in")),
    Sketcher.Constraint("DistanceY", 0, 1, 0, 2, Q("0.5 in")),
    Sketcher.Constraint("DistanceX", 1, 3, -1, 1, Q("0.4 in")),
    Sketcher.Constraint("DistanceY", 1, 3, -1, 1, 10.585319),
    Sketcher.Constraint("DistanceY", -1, 1, 2, 2, 15.98912),
    Sketcher.Constraint("DistanceX", 3, 2, 2, 2, 3.152619),
    Sketcher.Constraint("Distance", 2, 32.775913),
    Sketcher.Constraint("Distance", 3, 56.462705),
])
sketch12.setExpression("Constraints[12]", "Params.sketch12_radius")
sketch12.setExpression("Constraints[13]", "Params.sketch12_height")
pocket9 = doc.addObject("PartDesign::Pocket", "Pocket008")
body.addObject(pocket9)
pocket9.Profile = sketch12
pocket9.setExpression("Length", "Params.pocket9_length")
pocket9.Midplane = True

# Sketch on YZ plane
sketch13 = doc.addObject("Sketcher::SketchObject", "Sketch012")
body.addObject(sketch13)
sketch13.AttachmentSupport = (doc.YZ_Plane, [""])
sketch13.MapMode = "FlatFace"
sketch13.AttachmentOffset = App.Placement(Vector(0, 0, -0.5 * 25.4), App.Rotation())
sketch13.addGeometry(Part.Circle(Vector(43, -19, 0), Vector(0, 0, 1), 8), False)
sketch13.addConstraint([
    Sketcher.Constraint("Diameter", 0, 15.276163),
    Sketcher.Constraint("DistanceX", -1, 1, 0, 3, 43.161919),
    Sketcher.Constraint("DistanceY", 0, 3, -1, 1, 19.457238),
])
pad4 = doc.addObject("PartDesign::Pad", "Pad003")
body.addObject(pad4)
pad4.Profile = sketch13
pad4.setExpression("Length", "Params.pad4_length")

# Sketch on YZ plane
sketch14 = doc.addObject("Sketcher::SketchObject", "Sketch013")
body.addObject(sketch14)
sketch14.AttachmentSupport = (doc.YZ_Plane, [""])
sketch14.MapMode = "FlatFace"
sketch14.AttachmentOffset = App.Placement(Vector(0, 0, -0.4 * 25.4), App.Rotation())
sketch14.addGeometry(Part.Circle(Vector(43.2, -19.5, 0), Vector(0, 0, 1), 2.5), False)
sketch14.addConstraint([
    Sketcher.Constraint("Diameter", 0, Q("0.2 in")),
    Sketcher.Constraint("DistanceX", -1, 1, 0, 3, 43.161919),
    Sketcher.Constraint("DistanceY", 0, 3, -1, 1, 19.457238),
])
sketch14.setExpression("Constraints[0]", "Params.sketch14_diameter")
pad5 = doc.addObject("PartDesign::Pad", "Pad004")
body.addObject(pad5)
pad5.Profile = sketch14
pad5.setExpression("Length", "Params.pad5_length")

# Sketch on YZ plane
sketch15 = doc.addObject("Sketcher::SketchObject", "Sketch014")
body.addObject(sketch15)
sketch15.AttachmentSupport = (doc.YZ_Plane, [""])
sketch15.MapMode = "FlatFace"
sketch15.AttachmentOffset = App.Placement(Vector(0, 0, -0.6 * 25.4), App.Rotation())
sketch15.addGeometry([
    Part.LineSegment(Vector(43, -11.8, 0), Vector(35.6, -11.8, 0)),
    Part.LineSegment(Vector(35.6, -11.8, 0), Vector(35.6, -8, 0)),
    Part.LineSegment(Vector(35.6, -8, 0), Vector(43, -8, 0)),
    Part.LineSegment(Vector(43, -8, 0), Vector(43, -11.8, 0)),
], False)
sketch15.addConstraint([
    Sketcher.Constraint("Coincident", 0, 2, 1, 1),
    Sketcher.Constraint("Coincident", 1, 2, 2, 1),
    Sketcher.Constraint("Coincident", 2, 2, 3, 1),
    Sketcher.Constraint("Coincident", 3, 2, 0, 1),
    Sketcher.Constraint("Horizontal", 0),
    Sketcher.Constraint("Vertical", 1),
    Sketcher.Constraint("Horizontal", 2),
    Sketcher.Constraint("Vertical", 3),
    Sketcher.Constraint("DistanceX", -1, 1, 0, 2, Q("1.4 in")),
    Sketcher.Constraint("DistanceY", 1, 1, 1, 2, 3.77624),
    Sketcher.Constraint("DistanceX", 0, 2, 0, 1, 7.410355),
    Sketcher.Constraint("DistanceY", 0, 2, -1, 1, 11.821559),
])
pocket10 = doc.addObject("PartDesign::Pocket", "Pocket009")
body.addObject(pocket10)
pocket10.Profile = sketch15
pocket10.setExpression("Length", "Params.pocket10_length")
pocket10.Reversed = True

# Sketch on YZ plane
sketch16 = doc.addObject("Sketcher::SketchObject", "Sketch015")
body.addObject(sketch16)
sketch16.AttachmentSupport = (doc.YZ_Plane, [""])
sketch16.MapMode = "FlatFace"
sketch16.AttachmentOffset = App.Placement(Vector(0, 0, -0.6 * 25.4), App.Rotation())
sketch16.addGeometry([
    Part.LineSegment(Vector(32.4, -11.8, 0), Vector(30.8, -8, 0)),
    Part.LineSegment(Vector(30.8, -8, 0), Vector(35.6, -8, 0)),
    Part.LineSegment(Vector(35.6, -8, 0), Vector(35.6, -11.8, 0)),
    Part.LineSegment(Vector(35.6, -11.8, 0), Vector(32.4, -11.8, 0)),
], False)
sketch16.addConstraint([
    Sketcher.Constraint("Coincident", 0, 2, 1, 1),
    Sketcher.Constraint("Coincident", 1, 2, 2, 1),
    Sketcher.Constraint("Coincident", 2, 2, 3, 1),
    Sketcher.Constraint("Coincident", 3, 2, 0, 1),
    Sketcher.Constraint("Horizontal", 1),
    Sketcher.Constraint("Vertical", 2),
    Sketcher.Constraint("Horizontal", 3),
    Sketcher.Constraint("DistanceX", -1, 1, 1, 2, Q("1.4 in")),
    Sketcher.Constraint("DistanceX", 1, 1, 1, 2, 4.734541),
    Sketcher.Constraint("DistanceY", 2, 2, 2, 1, 3.77624),
    Sketcher.Constraint("DistanceX", 3, 2, 3, 1, 3.170345),
    Sketcher.Constraint("DistanceY", 0, 2, -1, 1, 8.045319),
])
pocket11 = doc.addObject("PartDesign::Pocket", "Pocket010")
body.addObject(pocket11)
pocket11.Profile = sketch16
pocket11.setExpression("Length", "Params.pocket11_length")
pocket11.Reversed = True

# Sketch on YZ plane
sketch17 = doc.addObject("Sketcher::SketchObject", "Sketch016")
body.addObject(sketch17)
sketch17.AttachmentSupport = (doc.YZ_Plane, [""])
sketch17.MapMode = "FlatFace"
sketch17.AttachmentOffset = App.Placement(Vector(0, 0, -0.4 * 25.4), App.Rotation())
sketch17.addGeometry(Part.Circle(Vector(22.9, -19.5, 0), Vector(0, 0, 1), 2.7), False)
sketch17.addConstraint([
    Sketcher.Constraint("DistanceX", -1, 1, 0, 3, Q("0.9 in")),
    Sketcher.Constraint("Diameter", 0, 5.4),
    Sketcher.Constraint("DistanceY", 0, 3, -1, 1, 19.475319),
])
pocket12 = doc.addObject("PartDesign::Pocket", "Pocket011")
body.addObject(pocket12)
pocket12.Profile = sketch17
pocket12.setExpression("Length", "Params.pocket12_length")
doc.recompute()

fillet = doc.addObject("PartDesign::Fillet", "Fillet")
body.addObject(fillet)
fillet.Base = (pocket12, edges_at(pocket12, [(-10.16, 22.86, -16.775)]))
fillet.setExpression("Radius", "Params.fillet_radius")

# Sketch on YZ plane
sketch18 = doc.addObject("Sketcher::SketchObject", "Sketch017")
body.addObject(sketch18)
sketch18.AttachmentSupport = (doc.YZ_Plane, [""])
sketch18.MapMode = "FlatFace"
sketch18.AttachmentOffset = App.Placement(Vector(0, 0, -14.36), App.Rotation())
sketch18.addGeometry(Part.Circle(Vector(22.9, -19.5, 0), Vector(0, 0, 1), 1.8), False)
sketch18.addConstraint([
    Sketcher.Constraint("Diameter", 0, Q("0.138 in")),
    Sketcher.Constraint("DistanceX", -1, 1, 0, 3, Q("0.9 in")),
    Sketcher.Constraint("DistanceY", 0, 3, -1, 1, 19.475319),
])
sketch18.setExpression("Constraints[0]", "Params.sketch18_diameter")
pocket13 = doc.addObject("PartDesign::Pocket", "Pocket012")
body.addObject(pocket13)
pocket13.Profile = sketch18
pocket13.setExpression("Length", "Params.pocket13_length")

doc.recompute()
